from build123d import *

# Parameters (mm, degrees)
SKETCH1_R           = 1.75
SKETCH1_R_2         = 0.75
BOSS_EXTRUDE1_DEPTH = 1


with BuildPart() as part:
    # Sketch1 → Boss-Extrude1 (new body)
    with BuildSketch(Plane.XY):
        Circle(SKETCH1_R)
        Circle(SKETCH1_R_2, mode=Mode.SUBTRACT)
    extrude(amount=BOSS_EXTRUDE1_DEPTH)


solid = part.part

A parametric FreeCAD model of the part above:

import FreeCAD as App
import Part
import Sketcher

doc = App.newDocument("Part")
body = doc.addObject("PartDesign::Body", "Body")

# Sketch on XY plane
sketch1 = body.newObject("Sketcher::SketchObject", "Sketch")
sketch1.AttachmentSupport = (doc.getObject("XY_Plane"), [""])
sketch1.MapMode = "FlatFace"
sketch1.addGeometry([
    Part.Circle(App.Vector(0, 0, 0), App.Vector(0, 0, 1), 1.8),
    Part.Circle(App.Vector(0, 0, 0), App.Vector(0, 0, 1), 0.8),
], False)
sketch1.addConstraint([
    Sketcher.Constraint("Coincident", 0, 3, -1, 1),
    Sketcher.Constraint("Coincident", 1, 3, -1, 1),
    Sketcher.Constraint("Diameter", 0, 3.5),
    Sketcher.Constraint("Diameter", 1, 1.5),
])
pad1 = body.newObject("PartDesign::Pad", "Pad")
pad1.Profile = sketch1
pad1.Length = 1

doc.recompute()
